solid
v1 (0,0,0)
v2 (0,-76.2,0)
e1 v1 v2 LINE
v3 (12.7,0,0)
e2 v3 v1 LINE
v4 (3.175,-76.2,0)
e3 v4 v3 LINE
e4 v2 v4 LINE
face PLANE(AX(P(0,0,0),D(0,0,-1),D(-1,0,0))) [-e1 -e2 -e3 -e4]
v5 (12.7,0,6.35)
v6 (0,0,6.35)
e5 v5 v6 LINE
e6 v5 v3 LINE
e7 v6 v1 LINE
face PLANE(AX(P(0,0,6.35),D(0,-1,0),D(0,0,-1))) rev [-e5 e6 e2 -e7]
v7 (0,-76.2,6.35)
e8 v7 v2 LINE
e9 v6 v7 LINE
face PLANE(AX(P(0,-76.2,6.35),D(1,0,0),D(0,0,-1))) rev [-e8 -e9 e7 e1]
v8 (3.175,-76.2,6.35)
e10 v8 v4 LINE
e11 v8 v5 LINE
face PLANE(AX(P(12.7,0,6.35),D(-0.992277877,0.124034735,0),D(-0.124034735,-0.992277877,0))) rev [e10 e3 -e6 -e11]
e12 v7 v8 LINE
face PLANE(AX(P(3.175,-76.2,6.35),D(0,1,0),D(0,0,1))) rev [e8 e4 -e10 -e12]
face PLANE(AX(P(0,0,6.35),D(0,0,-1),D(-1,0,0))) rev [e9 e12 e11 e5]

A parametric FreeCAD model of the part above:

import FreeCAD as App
import Part
import Sketcher
Q = App.Units.Quantity


def add_polygon(sketch, points):
    """Adds a closed chain of lines whose ends are joined by coincident constraints."""
    first, n = sketch.GeometryCount, len(points)
    for a, b in zip(points, points[1:] + points[:1]):
        sketch.addGeometry(Part.LineSegment(App.Vector(*a, 0), App.Vector(*b, 0)), False)
    for i in range(n):
        sketch.addConstraint(Sketcher.Constraint("Coincident", first + i, 2, first + (i + 1) % n, 1))

doc = App.newDocument("Part")
body = doc.addObject("PartDesign::Body", "Body")

sketch1 = body.newObject("Sketcher::SketchObject", "Sketch")
sketch1.AttachmentSupport = (doc.getObject("XY_Plane"), [""])
sketch1.MapMode = "FlatFace"
add_polygon(sketch1, [(12.7, 0), (0, 0), (0, -76.2), (3.175, -76.2)])
sketch1.addConstraint([
    Sketcher.Constraint("Horizontal", 0),
    Sketcher.Constraint("Vertical", 1),
    Sketcher.Constraint("Horizontal", 2),
    Sketcher.Constraint("Coincident", 0, 2, -1, 1),
    Sketcher.Constraint("DistanceY", 1, 2, 1, 1, Q("3 in")),
    Sketcher.Constraint("DistanceX", 0, 2, 0, 1, Q("0.5 in")),
    Sketcher.Constraint("DistanceX", 2, 1, 2, 2, Q("0.125 in")),
])
pad1 = body.newObject("PartDesign::Pad", "Pad")
pad1.Profile = sketch1
pad1.Length = Q("0.25 in")

doc.recompute()
